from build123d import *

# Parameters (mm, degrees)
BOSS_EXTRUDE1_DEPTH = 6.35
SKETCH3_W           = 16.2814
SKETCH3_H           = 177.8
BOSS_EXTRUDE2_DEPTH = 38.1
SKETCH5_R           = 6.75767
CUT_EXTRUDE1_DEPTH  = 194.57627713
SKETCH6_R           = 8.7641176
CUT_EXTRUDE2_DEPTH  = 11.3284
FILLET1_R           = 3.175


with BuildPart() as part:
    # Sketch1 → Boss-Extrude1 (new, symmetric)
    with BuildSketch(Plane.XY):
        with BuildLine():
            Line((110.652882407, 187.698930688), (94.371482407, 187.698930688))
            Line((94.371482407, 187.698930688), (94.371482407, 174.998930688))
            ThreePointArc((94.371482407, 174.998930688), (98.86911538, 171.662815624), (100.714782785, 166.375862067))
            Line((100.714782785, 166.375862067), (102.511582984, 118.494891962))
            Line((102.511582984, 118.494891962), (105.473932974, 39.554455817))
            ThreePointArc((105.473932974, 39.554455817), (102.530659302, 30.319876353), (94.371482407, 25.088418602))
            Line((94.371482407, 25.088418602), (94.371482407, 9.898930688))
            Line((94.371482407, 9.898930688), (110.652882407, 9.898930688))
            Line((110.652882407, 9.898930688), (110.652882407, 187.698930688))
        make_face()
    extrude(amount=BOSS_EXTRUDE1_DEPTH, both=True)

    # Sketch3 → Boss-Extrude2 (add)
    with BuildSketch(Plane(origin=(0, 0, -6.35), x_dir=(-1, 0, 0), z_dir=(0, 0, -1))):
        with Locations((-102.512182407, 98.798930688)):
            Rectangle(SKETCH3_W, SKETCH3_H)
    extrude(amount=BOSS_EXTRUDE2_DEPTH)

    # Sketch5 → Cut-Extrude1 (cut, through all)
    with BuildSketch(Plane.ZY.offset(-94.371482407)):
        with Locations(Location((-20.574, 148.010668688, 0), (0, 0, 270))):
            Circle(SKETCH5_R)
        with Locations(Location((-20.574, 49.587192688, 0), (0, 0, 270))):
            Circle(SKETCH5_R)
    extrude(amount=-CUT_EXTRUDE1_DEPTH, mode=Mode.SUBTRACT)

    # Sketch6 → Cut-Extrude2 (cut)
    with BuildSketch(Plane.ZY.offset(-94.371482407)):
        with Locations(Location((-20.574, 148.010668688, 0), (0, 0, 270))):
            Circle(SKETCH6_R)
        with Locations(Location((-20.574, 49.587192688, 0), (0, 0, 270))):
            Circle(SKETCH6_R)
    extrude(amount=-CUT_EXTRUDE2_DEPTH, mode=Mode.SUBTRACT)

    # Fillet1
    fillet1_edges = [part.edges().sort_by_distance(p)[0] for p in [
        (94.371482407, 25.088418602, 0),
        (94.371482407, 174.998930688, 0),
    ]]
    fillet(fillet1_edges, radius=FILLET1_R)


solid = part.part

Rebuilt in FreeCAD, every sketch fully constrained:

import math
import FreeCAD as App
import Part
import Sketcher

V = App.Vector
Q = App.Units.Quantity


def edges_at(feature, points):
    """Names of the edges that pass closest to the given points."""
    edges = feature.Shape.Edges
    near = lambda p: min(range(len(edges)), key=lambda i: edges[i].distToShape(Part.Vertex(*p))[0])
    return sorted({f"Edge{near(p) + 1}" for p in points})


def add_polygon(sketch, points):
    """Adds a closed chain of lines whose ends are joined by coincident constraints."""
    first, n = sketch.GeometryCount, len(points)
    for a, b in zip(points, points[1:] + points[:1]):
        sketch.addGeometry(Part.LineSegment(App.Vector(*a, 0), App.Vector(*b, 0)), False)
    for i in range(n):
        sketch.addConstraint(Sketcher.Constraint("Coincident", first + i, 2, first + (i + 1) % n, 1))

doc = App.newDocument("Part")
params = doc.addObject("Spreadsheet::Sheet", "Params")
for row, (alias, value) in enumerate([
    ("sketch1_height", "7 in"),
    ("sketch1_height2", "0.5 in"),
    ("sketch1_radius", "0.375 in"),
    ("sketch1_radius2", "0.5625 in"),
    ("sketch1_width", "0.641 in"),
    ("pad1_length", "0.5 in"),
    ("sketch2_height", "7 in"),
    ("sketch2_width", "0.641 in"),
    ("pad2_length", "1.5 in"),
    ("pocket2_length", "0.446 in"),
    ("fillet_radius", "0.125 in"),
], start=1):
    params.set(f"A{row}", alias)
    params.set(f"B{row}", "=" + value)
    params.setAlias(f"B{row}", alias)

body = doc.addObject("PartDesign::Body", "Body")

# Sketch on XY plane
sketch1 = body.newObject("Sketcher::SketchObject", "Sketch")
sketch1.AttachmentSupport = (doc.getObject("XY_Plane"), [""])
sketch1.MapMode = "FlatFace"
sketch1.addGeometry(Part.LineSegment(V(111, 188, 0), V(94, 188, 0)), False)
sketch1.addGeometry(Part.LineSegment(V(94, 188, 0), V(94, 175, 0)), False)
sketch1.addGeometry(Part.ArcOfCircle(Part.Circle(V(91, 166, 0), V(0, 0, 1), 10), math.radians(2), math.radians(71)), False)
sketch1.addGeometry(Part.LineSegment(V(101, 166, 0), V(103, 118, 0)), False)
sketch1.addGeometry(Part.LineSegment(V(103, 118, 0), V(105, 40, 0)), False)
sketch1.addGeometry(Part.ArcOfCircle(Part.Circle(V(91, 39, 0), V(0, 0, 1), 14), math.radians(-77), math.radians(2)), False)
sketch1.addGeometry(Part.LineSegment(V(94, 25, 0), V(94, 10, 0)), False)
sketch1.addGeometry(Part.LineSegment(V(94, 10, 0), V(111, 10, 0)), False)
sketch1.addGeometry(Part.LineSegment(V(111, 10, 0), V(111, 188, 0)), False)
sketch1.addConstraint(Sketcher.Constraint("Coincident", 0, 2, 1, 1))
sketch1.addConstraint(Sketcher.Constraint("Coincident", 1, 2, 2, 2))
sketch1.addConstraint(Sketcher.Constraint("Tangent", 2, 1, 3, 1))
sketch1.addConstraint(Sketcher.Constraint("Coincident", 3, 2, 4, 1))
sketch1.addConstraint(Sketcher.Constraint("Tangent", 4, 2, 5, 2))
sketch1.addConstraint(Sketcher.Constraint("Coincident", 5, 1, 6, 1))
sketch1.addConstraint(Sketcher.Constraint("Coincident", 6, 2, 7, 1))
sketch1.addConstraint(Sketcher.Constraint("Coincident", 7, 2, 8, 1))
sketch1.addConstraint(Sketcher.Constraint("Coincident", 8, 2, 0, 1))
sketch1.addConstraint(Sketcher.Constraint("Horizontal", 0))
sketch1.addConstraint(Sketcher.Constraint("Vertical", 1))
sketch1.addConstraint(Sketcher.Constraint("Vertical", 6))
sketch1.addConstraint(Sketcher.Constraint("Horizontal", 7))
sketch1.addConstraint(Sketcher.Constraint("Vertical", 8))
sketch1.addConstraint(Sketcher.Constraint("Parallel", 3, 4))
sketch1.addConstraint(Sketcher.Constraint("Vertical", 2, 3, 5, 3))
sketch1.addConstraint(Sketcher.Constraint("Vertical", 1, 2, 5, 1))
sketch1.addConstraint(Sketcher.Constraint("DistanceY", 8, 1, 8, 2, Q("7 in")))
sketch1.addConstraint(Sketcher.Constraint("DistanceY", 1, 2, 1, 1, Q("0.5 in")))
sketch1.addConstraint(Sketcher.Constraint("Radius", 2, Q("0.375 in")))
sketch1.addConstraint(Sketcher.Constraint("Radius", 5, Q("0.5625 in")))
sketch1.addConstraint(Sketcher.Constraint("DistanceY", 5, 3, 2, 3, Q("5 in")))
sketch1.addConstraint(Sketcher.Constraint("DistanceX", 0, 2, 0, 1, Q("0.641 in")))
sketch1.addConstraint(Sketcher.Constraint("DistanceX", 2, 3, 0, 2, Q("0.125 in")))
sketch1.addConstraint(Sketcher.Constraint("Distance", 4, 78.996))
sketch1.addConstraint(Sketcher.Constraint("DistanceY", -1, 1, 0, 2, 187.698931))
sketch1.addConstraint(Sketcher.Constraint("DistanceX", -1, 1, 2, 3, 91.196482))
sketch1.setExpression("Constraints[17]", "Params.sketch1_height")
sketch1.setExpression("Constraints[18]", "Params.sketch1_height2")
sketch1.setExpression("Constraints[19]", "Params.sketch1_radius")
sketch1.setExpression("Constraints[20]", "Params.sketch1_radius2")
sketch1.setExpression("Constraints[22]", "Params.sketch1_width")
pad1 = body.newObject("PartDesign::Pad", "Pad")
pad1.Profile = sketch1
pad1.setExpression("Length", "Params.pad1_length")
pad1.Midplane = True

# Sketch on XY plane
sketch2 = body.newObject("Sketcher::SketchObject", "Sketch001")
sketch2.AttachmentSupport = (doc.getObject("XY_Plane"), [""])
sketch2.MapMode = "FlatFace"
sketch2.AttachmentOffset = App.Placement(V(0, 0, -0.25 * 25.4), App.Rotation())
add_polygon(sketch2, [(111, 188), (111, 10), (94, 10), (94, 188)])  # lines 0-3
sketch2.addConstraint(Sketcher.Constraint("Vertical", 0))
sketch2.addConstraint(Sketcher.Constraint("Horizontal", 1))
sketch2.addConstraint(Sketcher.Constraint("Vertical", 2))
sketch2.addConstraint(Sketcher.Constraint("Horizontal", 3))
sketch2.addConstraint(Sketcher.Constraint("DistanceY", 0, 2, 0, 1, Q("7 in")))
sketch2.addConstraint(Sketcher.Constraint("DistanceX", 1, 2, 1, 1, Q("0.641 in")))
sketch2.addConstraint(Sketcher.Constraint("DistanceY", -1, 1, 0, 2, 9.898931))
sketch2.addConstraint(Sketcher.Constraint("DistanceX", -1, 1, 0, 2, 110.652882))
sketch2.setExpression("Constraints[8]", "Params.sketch2_height")
sketch2.setExpression("Constraints[9]", "Params.sketch2_width")
pad2 = body.newObject("PartDesign::Pad", "Pad001")
pad2.Profile = sketch2
pad2.setExpression("Length", "Params.pad2_length")
pad2.Reversed = True

# Sketch on YZ plane
sketch3 = body.newObject("Sketcher::SketchObject", "Sketch002")
sketch3.AttachmentSupport = (doc.getObject("YZ_Plane"), [""])
sketch3.MapMode = "FlatFace"
sketch3.AttachmentOffset = App.Placement(V(0, 0, 94.371482), App.Rotation())
sketch3.addGeometry(Part.Circle(V(148, -21, 0), V(0, 0, 1), 7), False)
sketch3.addGeometry(Part.Circle(V(50, -21, 0), V(0, 0, 1), 7), False)
sketch3.addConstraint(Sketcher.Constraint("Equal", 0, 1))
sketch3.addConstraint(Sketcher.Constraint("Horizontal", 0, 3, 1, 3))
sketch3.addConstraint(Sketcher.Constraint("Diameter", 0, Q("0.5321 in")))
sketch3.addConstraint(Sketcher.Constraint("DistanceY", 0, 3, -1, 1, Q("0.81 in")))
sketch3.addConstraint(Sketcher.Constraint("DistanceX", -1, 1, 0, 3, 148.010669))
sketch3.addConstraint(Sketcher.Constraint("DistanceX", -1, 1, 1, 3, 49.587193))
pocket1 = body.newObject("PartDesign::Pocket", "Pocket")
pocket1.Profile = sketch3
pocket1.Type = "ThroughAll"
pocket1.Reversed = True

# Sketch on YZ plane
sketch4 = body.newObject("Sketcher::SketchObject", "Sketch003")
sketch4.AttachmentSupport = (doc.getObject("YZ_Plane"), [""])
sketch4.MapMode = "FlatFace"
sketch4.AttachmentOffset = App.Placement(V(0, 0, 94.371482), App.Rotation())
sketch4.addGeometry(Part.Circle(V(148, -21, 0), V(0, 0, 1), 9), False)
sketch4.addGeometry(Part.Circle(V(50, -21, 0), V(0, 0, 1), 9), False)
sketch4.addConstraint(Sketcher.Constraint("Equal", 0, 1))
sketch4.addConstraint(Sketcher.Constraint("Horizontal", 0, 3, 1, 3))
sketch4.addConstraint(Sketcher.Constraint("DistanceY", 0, 3, -1, 1, Q("0.81 in")))
sketch4.addConstraint(Sketcher.Constraint("Diameter", 0, 17.528235))
sketch4.addConstraint(Sketcher.Constraint("DistanceX", -1, 1, 0, 3, 148.010669))
sketch4.addConstraint(Sketcher.Constraint("DistanceX", -1, 1, 1, 3, 49.587193))
pocket2 = body.newObject("PartDesign::Pocket", "Pocket001")
pocket2.Profile = sketch4
pocket2.setExpression("Length", "Params.pocket2_length")
pocket2.Reversed = True
doc.recompute()

fillet = body.newObject("PartDesign::Fillet", "Fillet")
fillet.Base = (pocket2, edges_at(pocket2, [(94.371, 25.088, 0), (94.371, 174.999, 0)]))
fillet.setExpression("Radius", "Params.fillet_radius")

doc.recompute()
